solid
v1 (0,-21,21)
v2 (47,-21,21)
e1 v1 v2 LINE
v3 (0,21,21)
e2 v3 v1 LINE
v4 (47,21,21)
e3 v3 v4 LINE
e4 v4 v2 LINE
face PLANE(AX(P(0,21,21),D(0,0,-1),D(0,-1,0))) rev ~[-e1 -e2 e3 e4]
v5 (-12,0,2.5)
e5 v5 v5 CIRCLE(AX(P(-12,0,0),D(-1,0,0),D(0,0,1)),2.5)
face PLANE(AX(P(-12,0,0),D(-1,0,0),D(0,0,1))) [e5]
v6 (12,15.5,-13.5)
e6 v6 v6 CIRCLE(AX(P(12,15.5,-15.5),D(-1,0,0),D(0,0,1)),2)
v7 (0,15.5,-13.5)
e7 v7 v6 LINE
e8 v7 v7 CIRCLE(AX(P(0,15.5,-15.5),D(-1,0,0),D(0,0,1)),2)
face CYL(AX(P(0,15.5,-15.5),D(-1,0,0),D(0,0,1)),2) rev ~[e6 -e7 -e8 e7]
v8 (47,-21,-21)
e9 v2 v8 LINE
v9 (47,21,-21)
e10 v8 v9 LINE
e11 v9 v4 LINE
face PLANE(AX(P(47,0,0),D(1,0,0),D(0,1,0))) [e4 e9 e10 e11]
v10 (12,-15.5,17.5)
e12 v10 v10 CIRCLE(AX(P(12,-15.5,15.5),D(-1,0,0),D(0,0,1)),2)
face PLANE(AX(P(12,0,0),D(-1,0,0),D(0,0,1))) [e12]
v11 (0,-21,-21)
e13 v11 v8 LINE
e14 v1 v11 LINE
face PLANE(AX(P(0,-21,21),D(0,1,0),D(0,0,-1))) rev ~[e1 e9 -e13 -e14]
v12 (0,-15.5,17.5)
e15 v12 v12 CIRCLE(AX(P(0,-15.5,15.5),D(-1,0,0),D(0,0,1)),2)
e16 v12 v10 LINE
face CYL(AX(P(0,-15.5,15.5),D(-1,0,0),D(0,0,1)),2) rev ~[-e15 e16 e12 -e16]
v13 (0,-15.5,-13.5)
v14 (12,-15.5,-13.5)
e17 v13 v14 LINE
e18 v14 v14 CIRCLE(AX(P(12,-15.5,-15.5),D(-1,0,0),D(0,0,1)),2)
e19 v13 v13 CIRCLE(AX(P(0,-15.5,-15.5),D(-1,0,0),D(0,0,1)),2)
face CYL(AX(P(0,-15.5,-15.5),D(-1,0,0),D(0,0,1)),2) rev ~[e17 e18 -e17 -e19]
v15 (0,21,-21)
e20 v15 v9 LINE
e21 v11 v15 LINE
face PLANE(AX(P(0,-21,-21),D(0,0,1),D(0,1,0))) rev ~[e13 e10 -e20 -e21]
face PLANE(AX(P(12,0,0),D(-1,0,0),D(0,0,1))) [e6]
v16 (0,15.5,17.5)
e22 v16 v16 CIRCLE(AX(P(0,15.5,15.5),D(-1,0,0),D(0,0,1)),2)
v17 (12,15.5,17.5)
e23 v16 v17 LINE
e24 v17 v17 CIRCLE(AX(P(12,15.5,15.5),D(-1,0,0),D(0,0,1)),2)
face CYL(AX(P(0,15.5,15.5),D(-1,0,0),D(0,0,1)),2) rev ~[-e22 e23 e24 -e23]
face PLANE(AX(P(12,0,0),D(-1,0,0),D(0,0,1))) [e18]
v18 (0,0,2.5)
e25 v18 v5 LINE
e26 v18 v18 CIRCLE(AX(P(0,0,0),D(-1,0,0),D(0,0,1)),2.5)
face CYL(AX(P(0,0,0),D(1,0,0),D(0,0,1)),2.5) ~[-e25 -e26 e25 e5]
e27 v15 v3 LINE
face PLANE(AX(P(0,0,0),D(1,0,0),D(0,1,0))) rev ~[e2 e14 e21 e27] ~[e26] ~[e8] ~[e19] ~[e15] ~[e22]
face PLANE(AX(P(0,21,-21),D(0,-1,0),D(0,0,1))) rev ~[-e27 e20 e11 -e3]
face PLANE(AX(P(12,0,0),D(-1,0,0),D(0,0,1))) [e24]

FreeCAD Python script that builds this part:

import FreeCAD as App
import Part
import Sketcher

V = App.Vector


def add_polygon(sketch, points):
    """Adds a closed chain of lines whose ends are joined by coincident constraints."""
    first, n = sketch.GeometryCount, len(points)
    for a, b in zip(points, points[1:] + points[:1]):
        sketch.addGeometry(Part.LineSegment(App.Vector(*a, 0), App.Vector(*b, 0)), False)
    for i in range(n):
        sketch.addConstraint(Sketcher.Constraint("Coincident", first + i, 2, first + (i + 1) % n, 1))

doc = App.newDocument("Part")
params = doc.addObject("Spreadsheet::Sheet", "Params")
for row, (alias, value) in enumerate([
    ("sketch1_width", "42 mm"),
    ("pad1_length", "47 mm"),
    ("sketch2_diameter", "5 mm"),
    ("pad2_length", "12 mm"),
    ("sketch3_diameter", "4 mm"),
    ("pocket1_length", "12 mm"),
], start=1):
    params.set(f"A{row}", alias)
    params.set(f"B{row}", "=" + value)
    params.setAlias(f"B{row}", alias)

body = doc.addObject("PartDesign::Body", "Body")

# Sketch on YZ plane
sketch1 = doc.addObject("Sketcher::SketchObject", "Sketch")
body.addObject(sketch1)
sketch1.AttachmentSupport = (doc.YZ_Plane, [""])
sketch1.MapMode = "FlatFace"
add_polygon(sketch1, [(21, -21), (21, 21), (-21, 21), (-21, -21)])  # lines 0-3
sketch1.addConstraint([
    Sketcher.Constraint("Vertical", 0),
    Sketcher.Constraint("Horizontal", 1),
    Sketcher.Constraint("Vertical", 2),
    Sketcher.Constraint("Horizontal", 3),
    Sketcher.Constraint("Symmetric", 0, 2, 2, 2, -1, 1),
    Sketcher.Constraint("Equal", 3, 0),
    Sketcher.Constraint("DistanceX", 1, 2, 1, 1, 42.0),
])
sketch1.setExpression("Constraints[10]", "Params.sketch1_width")
pad1 = doc.addObject("PartDesign::Pad", "Pad")
body.addObject(pad1)
pad1.Profile = sketch1
pad1.setExpression("Length", "Params.pad1_length")

# Sketch on YZ plane
sketch2 = doc.addObject("Sketcher::SketchObject", "Sketch001")
body.addObject(sketch2)
sketch2.AttachmentSupport = (doc.YZ_Plane, [""])
sketch2.MapMode = "FlatFace"
sketch2.addGeometry(Part.Circle(V(0, 0, 0), V(0, 0, 1), 2.5), False)
sketch2.addConstraint([
    Sketcher.Constraint("Coincident", 0, 3, -1, 1),
    Sketcher.Constraint("Diameter", 0, 5.0),
])
sketch2.setExpression("Constraints[1]", "Params.sketch2_diameter")
pad2 = doc.addObject("PartDesign::Pad", "Pad001")
body.addObject(pad2)
pad2.Profile = sketch2
pad2.setExpression("Length", "Params.pad2_length")
pad2.Reversed = True

# Sketch on YZ plane
sketch3 = doc.addObject("Sketcher::SketchObject", "Sketch002")
body.addObject(sketch3)
sketch3.AttachmentSupport = (doc.YZ_Plane, [""])
sketch3.MapMode = "FlatFace"
sketch3.addGeometry([
    Part.Circle(V(15.5, 15.5, 0), V(0, 0, 1), 2),
    Part.Circle(V(-15.5, 15.5, 0), V(0, 0, 1), 2),
    Part.Circle(V(15.5, -15.5, 0), V(0, 0, 1), 2),
    Part.Circle(V(-15.5, -15.5, 0), V(0, 0, 1), 2),
], False)
sketch3.addConstraint([
    Sketcher.Constraint("Equal", 0, 1),
    Sketcher.Constraint("Equal", 1, 2),
    Sketcher.Constraint("Equal", 2, 3),
    Sketcher.Constraint("Symmetric", 1, 3, 2, 3, -1, 1),
    Sketcher.Constraint("Symmetric", 0, 3, 3, 3, -1, 1),
    Sketcher.Constraint("Symmetric", 0, 3, 1, 3, -2),
    Sketcher.Constraint("Diameter", 0, 4.0),
    Sketcher.Constraint("DistanceX", -1, 1, 0, 3, 15.5),
    Sketcher.Constraint("DistanceY", -1, 1, 0, 3, 15.5),
])
sketch3.setExpression("Constraints[6]", "Params.sketch3_diameter")
pocket1 = doc.addObject("PartDesign::Pocket", "Pocket")
body.addObject(pocket1)
pocket1.Profile = sketch3
pocket1.setExpression("Length", "Params.pocket1_length")
pocket1.Reversed = True

doc.recompute()
